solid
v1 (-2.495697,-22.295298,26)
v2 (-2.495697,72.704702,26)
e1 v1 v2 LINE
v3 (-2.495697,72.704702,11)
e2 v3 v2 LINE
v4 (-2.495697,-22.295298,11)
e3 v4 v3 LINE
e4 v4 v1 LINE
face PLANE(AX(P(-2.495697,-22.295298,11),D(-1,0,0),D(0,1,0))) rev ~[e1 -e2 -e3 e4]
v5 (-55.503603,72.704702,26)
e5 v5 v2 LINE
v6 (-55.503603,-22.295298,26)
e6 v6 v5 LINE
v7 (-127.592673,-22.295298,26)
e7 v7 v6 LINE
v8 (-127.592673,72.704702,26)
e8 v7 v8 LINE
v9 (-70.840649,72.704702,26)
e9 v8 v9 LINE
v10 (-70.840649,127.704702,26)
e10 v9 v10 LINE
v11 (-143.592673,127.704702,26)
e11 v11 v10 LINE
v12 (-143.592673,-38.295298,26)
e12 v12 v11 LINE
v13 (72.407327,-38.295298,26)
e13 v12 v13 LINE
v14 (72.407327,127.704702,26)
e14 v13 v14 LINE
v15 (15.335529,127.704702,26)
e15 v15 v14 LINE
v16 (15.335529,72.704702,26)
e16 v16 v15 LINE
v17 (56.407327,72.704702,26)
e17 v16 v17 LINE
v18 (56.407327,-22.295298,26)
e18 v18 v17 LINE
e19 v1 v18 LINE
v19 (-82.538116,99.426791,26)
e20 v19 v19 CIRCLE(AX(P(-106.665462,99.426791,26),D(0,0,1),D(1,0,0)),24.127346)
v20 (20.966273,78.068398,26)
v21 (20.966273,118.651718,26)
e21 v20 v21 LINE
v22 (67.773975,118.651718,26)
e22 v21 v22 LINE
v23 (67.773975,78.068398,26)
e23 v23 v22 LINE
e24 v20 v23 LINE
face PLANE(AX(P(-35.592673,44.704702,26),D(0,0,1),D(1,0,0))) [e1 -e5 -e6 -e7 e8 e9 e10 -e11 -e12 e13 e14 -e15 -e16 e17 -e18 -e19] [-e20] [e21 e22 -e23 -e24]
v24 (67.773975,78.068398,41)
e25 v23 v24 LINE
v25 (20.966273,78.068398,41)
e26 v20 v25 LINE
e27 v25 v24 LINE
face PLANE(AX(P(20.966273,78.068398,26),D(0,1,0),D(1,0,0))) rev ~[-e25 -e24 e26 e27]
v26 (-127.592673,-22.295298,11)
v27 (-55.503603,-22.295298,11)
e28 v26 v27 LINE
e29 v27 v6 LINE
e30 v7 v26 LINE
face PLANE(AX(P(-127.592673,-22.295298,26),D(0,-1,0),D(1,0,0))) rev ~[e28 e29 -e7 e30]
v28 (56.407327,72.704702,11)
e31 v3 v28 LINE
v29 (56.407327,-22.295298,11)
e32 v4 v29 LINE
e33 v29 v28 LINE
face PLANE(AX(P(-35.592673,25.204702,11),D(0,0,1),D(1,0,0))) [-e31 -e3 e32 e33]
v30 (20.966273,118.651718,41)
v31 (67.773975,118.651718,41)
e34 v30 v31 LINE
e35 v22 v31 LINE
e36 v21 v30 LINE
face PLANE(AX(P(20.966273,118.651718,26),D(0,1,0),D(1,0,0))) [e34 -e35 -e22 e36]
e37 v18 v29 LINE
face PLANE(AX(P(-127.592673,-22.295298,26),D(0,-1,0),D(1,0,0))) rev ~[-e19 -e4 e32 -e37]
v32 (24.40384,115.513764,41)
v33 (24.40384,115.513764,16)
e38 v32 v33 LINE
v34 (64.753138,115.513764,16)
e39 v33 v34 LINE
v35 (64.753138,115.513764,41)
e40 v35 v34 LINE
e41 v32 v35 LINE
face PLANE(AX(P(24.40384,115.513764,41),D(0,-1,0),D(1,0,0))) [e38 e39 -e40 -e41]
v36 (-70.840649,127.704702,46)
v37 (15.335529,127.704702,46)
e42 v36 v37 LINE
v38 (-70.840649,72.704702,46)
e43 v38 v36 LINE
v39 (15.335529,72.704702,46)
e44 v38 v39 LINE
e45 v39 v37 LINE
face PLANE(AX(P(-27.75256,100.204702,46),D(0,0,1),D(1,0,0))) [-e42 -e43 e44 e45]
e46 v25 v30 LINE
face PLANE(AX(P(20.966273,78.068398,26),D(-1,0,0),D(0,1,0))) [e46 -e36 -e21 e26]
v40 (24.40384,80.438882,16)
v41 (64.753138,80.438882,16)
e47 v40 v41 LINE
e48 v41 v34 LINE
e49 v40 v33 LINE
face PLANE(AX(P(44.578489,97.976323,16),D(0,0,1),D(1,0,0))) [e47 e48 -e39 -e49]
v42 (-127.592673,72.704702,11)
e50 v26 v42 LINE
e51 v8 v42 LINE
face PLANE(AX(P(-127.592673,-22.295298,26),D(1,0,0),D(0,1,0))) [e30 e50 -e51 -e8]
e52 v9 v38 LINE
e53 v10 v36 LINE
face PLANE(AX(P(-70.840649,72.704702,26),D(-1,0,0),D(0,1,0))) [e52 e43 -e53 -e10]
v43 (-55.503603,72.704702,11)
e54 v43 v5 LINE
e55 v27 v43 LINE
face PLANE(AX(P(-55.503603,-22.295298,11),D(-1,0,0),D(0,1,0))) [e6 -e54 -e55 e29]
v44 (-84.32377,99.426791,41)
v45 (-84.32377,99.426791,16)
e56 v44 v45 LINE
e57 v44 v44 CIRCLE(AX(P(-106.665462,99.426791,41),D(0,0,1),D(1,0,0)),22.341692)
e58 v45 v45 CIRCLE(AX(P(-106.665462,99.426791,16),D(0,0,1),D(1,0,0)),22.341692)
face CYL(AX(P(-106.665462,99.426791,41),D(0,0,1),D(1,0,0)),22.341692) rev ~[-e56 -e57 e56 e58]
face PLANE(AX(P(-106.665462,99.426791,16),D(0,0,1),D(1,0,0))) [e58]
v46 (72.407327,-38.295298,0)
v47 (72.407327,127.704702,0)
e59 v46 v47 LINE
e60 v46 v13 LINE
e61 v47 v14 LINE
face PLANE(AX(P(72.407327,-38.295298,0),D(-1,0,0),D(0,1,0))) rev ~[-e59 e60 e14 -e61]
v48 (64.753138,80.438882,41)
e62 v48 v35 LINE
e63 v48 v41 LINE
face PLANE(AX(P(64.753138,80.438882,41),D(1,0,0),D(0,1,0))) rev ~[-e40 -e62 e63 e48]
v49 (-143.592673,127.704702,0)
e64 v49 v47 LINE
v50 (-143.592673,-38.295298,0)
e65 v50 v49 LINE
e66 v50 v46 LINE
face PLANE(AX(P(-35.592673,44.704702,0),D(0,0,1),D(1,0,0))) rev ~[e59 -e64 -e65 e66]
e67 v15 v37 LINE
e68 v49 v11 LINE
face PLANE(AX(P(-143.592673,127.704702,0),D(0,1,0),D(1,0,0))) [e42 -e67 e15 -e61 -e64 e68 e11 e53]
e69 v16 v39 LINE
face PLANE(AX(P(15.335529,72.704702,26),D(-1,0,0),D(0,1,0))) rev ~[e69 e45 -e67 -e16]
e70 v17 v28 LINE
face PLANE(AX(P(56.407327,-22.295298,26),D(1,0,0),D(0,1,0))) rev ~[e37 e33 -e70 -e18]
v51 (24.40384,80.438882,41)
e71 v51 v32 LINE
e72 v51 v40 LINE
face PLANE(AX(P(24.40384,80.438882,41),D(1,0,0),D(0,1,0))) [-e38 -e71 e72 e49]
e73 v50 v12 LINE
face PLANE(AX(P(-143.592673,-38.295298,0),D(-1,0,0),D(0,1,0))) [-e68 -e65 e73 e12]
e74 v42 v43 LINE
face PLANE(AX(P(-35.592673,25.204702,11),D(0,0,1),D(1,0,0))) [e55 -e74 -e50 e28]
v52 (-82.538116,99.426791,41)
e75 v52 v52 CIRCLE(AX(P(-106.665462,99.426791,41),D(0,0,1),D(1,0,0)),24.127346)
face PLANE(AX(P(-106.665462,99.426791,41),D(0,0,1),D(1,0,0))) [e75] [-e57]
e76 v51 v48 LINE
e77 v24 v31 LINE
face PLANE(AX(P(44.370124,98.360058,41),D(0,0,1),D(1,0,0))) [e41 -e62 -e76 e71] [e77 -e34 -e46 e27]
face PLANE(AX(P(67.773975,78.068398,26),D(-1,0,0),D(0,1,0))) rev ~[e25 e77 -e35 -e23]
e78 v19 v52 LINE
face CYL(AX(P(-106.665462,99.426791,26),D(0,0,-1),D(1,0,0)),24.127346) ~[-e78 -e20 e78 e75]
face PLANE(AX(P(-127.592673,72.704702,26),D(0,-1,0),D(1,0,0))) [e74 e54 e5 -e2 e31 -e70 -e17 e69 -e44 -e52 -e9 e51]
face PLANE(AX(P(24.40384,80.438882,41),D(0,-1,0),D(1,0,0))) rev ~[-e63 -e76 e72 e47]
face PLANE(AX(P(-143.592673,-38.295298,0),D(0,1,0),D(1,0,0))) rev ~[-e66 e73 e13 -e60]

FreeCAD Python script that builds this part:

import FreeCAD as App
import Part
import Sketcher
from FreeCAD import Vector


def add_polygon(sketch, points):
    """Adds a closed chain of lines whose ends are joined by coincident constraints."""
    first, n = sketch.GeometryCount, len(points)
    for a, b in zip(points, points[1:] + points[:1]):
        sketch.addGeometry(Part.LineSegment(App.Vector(*a, 0), App.Vector(*b, 0)), False)
    for i in range(n):
        sketch.addConstraint(Sketcher.Constraint("Coincident", first + i, 2, first + (i + 1) % n, 1))

doc = App.newDocument("Part")
params = doc.addObject("Spreadsheet::Sheet", "Params")
for row, (alias, value) in enumerate([
    ("sketch1_width", "216 mm"),
    ("sketch1_height", "166 mm"),
    ("pad1_length", "26 mm"),
    ("sketch2_width", "184 mm"),
    ("sketch2_height", "95 mm"),
    ("pocket1_length", "15 mm"),
    ("sketch3_height", "55 mm"),
    ("pad2_length", "20 mm"),
    ("sketch4_height", "95 mm"),
    ("pad3_length", "15 mm"),
    ("pad4_length", "15 mm"),
    ("pocket2_length", "25 mm"),
    ("pad5_length", "15 mm"),
    ("pocket3_length", "25 mm"),
], start=1):
    params.set(f"A{row}", alias)
    params.set(f"B{row}", "=" + value)
    params.setAlias(f"B{row}", alias)

body = doc.addObject("PartDesign::Body", "Body")

sketch1 = doc.addObject("Sketcher::SketchObject", "Sketch")
body.addObject(sketch1)
sketch1.AttachmentSupport = (doc.XY_Plane, [""])
sketch1.MapMode = "FlatFace"
add_polygon(sketch1, [(-143.592673, 127.704702), (-143.592673, -38.295298), (72.407327, -38.295298), (72.407327, 127.704702)])
sketch1.addConstraint([
    Sketcher.Constraint("Vertical", 0),
    Sketcher.Constraint("Horizontal", 1),
    Sketcher.Constraint("Vertical", 2),
    Sketcher.Constraint("Horizontal", 3),
    Sketcher.Constraint("DistanceX", 1, 1, 1, 2, 216.0),
    Sketcher.Constraint("DistanceY", 0, 2, 0, 1, 166.0),
    Sketcher.Constraint("DistanceY", 0, 2, -1, 1, 38.295298),
    Sketcher.Constraint("DistanceX", 0, 2, -1, 1, 143.592673),
])
sketch1.setExpression("Constraints[8]", "Params.sketch1_width")
sketch1.setExpression("Constraints[9]", "Params.sketch1_height")
pad1 = doc.addObject("PartDesign::Pad", "Pad")
body.addObject(pad1)
pad1.Profile = sketch1
pad1.setExpression("Length", "Params.pad1_length")

sketch2 = doc.addObject("Sketcher::SketchObject", "Sketch001")
body.addObject(sketch2)
sketch2.AttachmentSupport = (doc.XY_Plane, [""])
sketch2.MapMode = "FlatFace"
sketch2.AttachmentOffset = App.Placement(Vector(0, 0, 26), App.Rotation())
add_polygon(sketch2, [(-127.592673, 72.704702), (-127.592673, -22.295298), (56.407327, -22.295298), (56.407327, 72.704702)])
sketch2.addConstraint([
    Sketcher.Constraint("Vertical", 0),
    Sketcher.Constraint("Horizontal", 1),
    Sketcher.Constraint("Vertical", 2),
    Sketcher.Constraint("Horizontal", 3),
    Sketcher.Constraint("DistanceX", 1, 1, 1, 2, 184.0),
    Sketcher.Constraint("DistanceY", 0, 2, 0, 1, 95.0),
    Sketcher.Constraint("DistanceY", -1, 1, 2, 2, 72.704702),
    Sketcher.Constraint("DistanceX", 0, 2, -1, 1, 127.592673),
])
sketch2.setExpression("Constraints[8]", "Params.sketch2_width")
sketch2.setExpression("Constraints[9]", "Params.sketch2_height")
pocket1 = doc.addObject("PartDesign::Pocket", "Pocket")
body.addObject(pocket1)
pocket1.Profile = sketch2
pocket1.setExpression("Length", "Params.pocket1_length")

sketch3 = doc.addObject("Sketcher::SketchObject", "Sketch002")
body.addObject(sketch3)
sketch3.AttachmentSupport = (doc.XY_Plane, [""])
sketch3.MapMode = "FlatFace"
sketch3.AttachmentOffset = App.Placement(Vector(0, 0, 26), App.Rotation())
add_polygon(sketch3, [(-70.840649, 127.704702), (-70.840649, 72.704702), (15.335529, 72.704702), (15.335529, 127.704702)])
sketch3.addConstraint([
    Sketcher.Constraint("Vertical", 0),
    Sketcher.Constraint("Horizontal", 1),
    Sketcher.Constraint("Vertical", 2),
    Sketcher.Constraint("Horizontal", 3),
    Sketcher.Constraint("DistanceY", 0, 2, 0, 1, 55.0),
    Sketcher.Constraint("DistanceY", -1, 1, 0, 2, 72.704702),
    Sketcher.Constraint("DistanceX", 1, 1, 1, 2, 86.176178),
    Sketcher.Constraint("DistanceX", 0, 2, -1, 1, 70.840649),
])
sketch3.setExpression("Constraints[8]", "Params.sketch3_height")
pad2 = doc.addObject("PartDesign::Pad", "Pad001")
body.addObject(pad2)
pad2.Profile = sketch3
pad2.setExpression("Length", "Params.pad2_length")

sketch4 = doc.addObject("Sketcher::SketchObject", "Sketch003")
body.addObject(sketch4)
sketch4.AttachmentSupport = (doc.XY_Plane, [""])
sketch4.MapMode = "FlatFace"
sketch4.AttachmentOffset = App.Placement(Vector(0, 0, 11), App.Rotation())
add_polygon(sketch4, [(-55.503603, 72.704702), (-55.503603, -22.295298), (-2.495697, -22.295298), (-2.495697, 72.704702)])
sketch4.addConstraint([
    Sketcher.Constraint("Vertical", 0),
    Sketcher.Constraint("Horizontal", 1),
    Sketcher.Constraint("Vertical", 2),
    Sketcher.Constraint("Horizontal", 3),
    Sketcher.Constraint("DistanceY", 0, 2, 0, 1, 95.0),
    Sketcher.Constraint("DistanceY", -1, 1, 2, 2, 72.704702),
    Sketcher.Constraint("DistanceX", 1, 1, 1, 2, 53.007906),
    Sketcher.Constraint("DistanceX", 0, 2, -1, 1, 55.503603),
])
sketch4.setExpression("Constraints[8]", "Params.sketch4_height")
pad3 = doc.addObject("PartDesign::Pad", "Pad002")
body.addObject(pad3)
pad3.Profile = sketch4
pad3.setExpression("Length", "Params.pad3_length")

sketch5 = doc.addObject("Sketcher::SketchObject", "Sketch004")
body.addObject(sketch5)
sketch5.AttachmentSupport = (doc.XY_Plane, [""])
sketch5.MapMode = "FlatFace"
sketch5.AttachmentOffset = App.Placement(Vector(0, 0, 26), App.Rotation())
sketch5.addGeometry(Part.Circle(Vector(-106.665462, 99.426791, 0), Vector(0, 0, 1), 24.127346), False)
sketch5.addConstraint([
    Sketcher.Constraint("Diameter", 0, 48.254692),
    Sketcher.Constraint("DistanceY", -1, 1, 0, 3, 99.426791),
    Sketcher.Constraint("DistanceX", 0, 3, -1, 1, 106.665462),
])
pad4 = doc.addObject("PartDesign::Pad", "Pad003")
body.addObject(pad4)
pad4.Profile = sketch5
pad4.setExpression("Length", "Params.pad4_length")

sketch6 = doc.addObject("Sketcher::SketchObject", "Sketch005")
body.addObject(sketch6)
sketch6.AttachmentSupport = (doc.XY_Plane, [""])
sketch6.MapMode = "FlatFace"
sketch6.AttachmentOffset = App.Placement(Vector(0, 0, 41), App.Rotation())
sketch6.addGeometry(Part.Circle(Vector(-106.665462, 99.426791, 0), Vector(0, 0, 1), 22.341692), False)
sketch6.addConstraint([
    Sketcher.Constraint("Diameter", 0, 44.683384),
    Sketcher.Constraint("DistanceY", -1, 1, 0, 3, 99.426791),
    Sketcher.Constraint("DistanceX", 0, 3, -1, 1, 106.665462),
])
pocket2 = doc.addObject("PartDesign::Pocket", "Pocket001")
body.addObject(pocket2)
pocket2.Profile = sketch6
pocket2.setExpression("Length", "Params.pocket2_length")

sketch7 = doc.addObject("Sketcher::SketchObject", "Sketch006")
body.addObject(sketch7)
sketch7.AttachmentSupport = (doc.XY_Plane, [""])
sketch7.MapMode = "FlatFace"
sketch7.AttachmentOffset = App.Placement(Vector(0, 0, 26), App.Rotation())
add_polygon(sketch7, [(20.966273, 118.651718), (20.966273, 78.068398), (67.773975, 78.068398), (67.773975, 118.651718)])
sketch7.addConstraint([
    Sketcher.Constraint("Vertical", 0),
    Sketcher.Constraint("Horizontal", 1),
    Sketcher.Constraint("Vertical", 2),
    Sketcher.Constraint("Horizontal", 3),
    Sketcher.Constraint("DistanceX", 1, 1, 1, 2, 46.807702),
    Sketcher.Constraint("DistanceY", 0, 2, 0, 1, 40.58332),
    Sketcher.Constraint("DistanceY", -1, 1, 0, 2, 78.068398),
    Sketcher.Constraint("DistanceX", -1, 1, 0, 2, 20.966273),
])
pad5 = doc.addObject("PartDesign::Pad", "Pad004")
body.addObject(pad5)
pad5.Profile = sketch7
pad5.setExpression("Length", "Params.pad5_length")

sketch8 = doc.addObject("Sketcher::SketchObject", "Sketch007")
body.addObject(sketch8)
sketch8.AttachmentSupport = (doc.XY_Plane, [""])
sketch8.MapMode = "FlatFace"
sketch8.AttachmentOffset = App.Placement(Vector(0, 0, 41), App.Rotation())
add_polygon(sketch8, [(24.40384, 115.513764), (24.40384, 80.438882), (64.753138, 80.438882), (64.753138, 115.513764)])
sketch8.addConstraint([
    Sketcher.Constraint("Vertical", 0),
    Sketcher.Constraint("Horizontal", 1),
    Sketcher.Constraint("Vertical", 2),
    Sketcher.Constraint("Horizontal", 3),
    Sketcher.Constraint("DistanceX", 1, 1, 1, 2, 40.349298),
    Sketcher.Constraint("DistanceY", 0, 2, 0, 1, 35.074882),
    Sketcher.Constraint("DistanceX", -1, 1, 0, 2, 24.40384),
    Sketcher.Constraint("DistanceY", -1, 1, 0, 2, 80.438882),
])
pocket3 = doc.addObject("PartDesign::Pocket", "Pocket002")
body.addObject(pocket3)
pocket3.Profile = sketch8
pocket3.setExpression("Length", "Params.pocket3_length")

doc.recompute()
